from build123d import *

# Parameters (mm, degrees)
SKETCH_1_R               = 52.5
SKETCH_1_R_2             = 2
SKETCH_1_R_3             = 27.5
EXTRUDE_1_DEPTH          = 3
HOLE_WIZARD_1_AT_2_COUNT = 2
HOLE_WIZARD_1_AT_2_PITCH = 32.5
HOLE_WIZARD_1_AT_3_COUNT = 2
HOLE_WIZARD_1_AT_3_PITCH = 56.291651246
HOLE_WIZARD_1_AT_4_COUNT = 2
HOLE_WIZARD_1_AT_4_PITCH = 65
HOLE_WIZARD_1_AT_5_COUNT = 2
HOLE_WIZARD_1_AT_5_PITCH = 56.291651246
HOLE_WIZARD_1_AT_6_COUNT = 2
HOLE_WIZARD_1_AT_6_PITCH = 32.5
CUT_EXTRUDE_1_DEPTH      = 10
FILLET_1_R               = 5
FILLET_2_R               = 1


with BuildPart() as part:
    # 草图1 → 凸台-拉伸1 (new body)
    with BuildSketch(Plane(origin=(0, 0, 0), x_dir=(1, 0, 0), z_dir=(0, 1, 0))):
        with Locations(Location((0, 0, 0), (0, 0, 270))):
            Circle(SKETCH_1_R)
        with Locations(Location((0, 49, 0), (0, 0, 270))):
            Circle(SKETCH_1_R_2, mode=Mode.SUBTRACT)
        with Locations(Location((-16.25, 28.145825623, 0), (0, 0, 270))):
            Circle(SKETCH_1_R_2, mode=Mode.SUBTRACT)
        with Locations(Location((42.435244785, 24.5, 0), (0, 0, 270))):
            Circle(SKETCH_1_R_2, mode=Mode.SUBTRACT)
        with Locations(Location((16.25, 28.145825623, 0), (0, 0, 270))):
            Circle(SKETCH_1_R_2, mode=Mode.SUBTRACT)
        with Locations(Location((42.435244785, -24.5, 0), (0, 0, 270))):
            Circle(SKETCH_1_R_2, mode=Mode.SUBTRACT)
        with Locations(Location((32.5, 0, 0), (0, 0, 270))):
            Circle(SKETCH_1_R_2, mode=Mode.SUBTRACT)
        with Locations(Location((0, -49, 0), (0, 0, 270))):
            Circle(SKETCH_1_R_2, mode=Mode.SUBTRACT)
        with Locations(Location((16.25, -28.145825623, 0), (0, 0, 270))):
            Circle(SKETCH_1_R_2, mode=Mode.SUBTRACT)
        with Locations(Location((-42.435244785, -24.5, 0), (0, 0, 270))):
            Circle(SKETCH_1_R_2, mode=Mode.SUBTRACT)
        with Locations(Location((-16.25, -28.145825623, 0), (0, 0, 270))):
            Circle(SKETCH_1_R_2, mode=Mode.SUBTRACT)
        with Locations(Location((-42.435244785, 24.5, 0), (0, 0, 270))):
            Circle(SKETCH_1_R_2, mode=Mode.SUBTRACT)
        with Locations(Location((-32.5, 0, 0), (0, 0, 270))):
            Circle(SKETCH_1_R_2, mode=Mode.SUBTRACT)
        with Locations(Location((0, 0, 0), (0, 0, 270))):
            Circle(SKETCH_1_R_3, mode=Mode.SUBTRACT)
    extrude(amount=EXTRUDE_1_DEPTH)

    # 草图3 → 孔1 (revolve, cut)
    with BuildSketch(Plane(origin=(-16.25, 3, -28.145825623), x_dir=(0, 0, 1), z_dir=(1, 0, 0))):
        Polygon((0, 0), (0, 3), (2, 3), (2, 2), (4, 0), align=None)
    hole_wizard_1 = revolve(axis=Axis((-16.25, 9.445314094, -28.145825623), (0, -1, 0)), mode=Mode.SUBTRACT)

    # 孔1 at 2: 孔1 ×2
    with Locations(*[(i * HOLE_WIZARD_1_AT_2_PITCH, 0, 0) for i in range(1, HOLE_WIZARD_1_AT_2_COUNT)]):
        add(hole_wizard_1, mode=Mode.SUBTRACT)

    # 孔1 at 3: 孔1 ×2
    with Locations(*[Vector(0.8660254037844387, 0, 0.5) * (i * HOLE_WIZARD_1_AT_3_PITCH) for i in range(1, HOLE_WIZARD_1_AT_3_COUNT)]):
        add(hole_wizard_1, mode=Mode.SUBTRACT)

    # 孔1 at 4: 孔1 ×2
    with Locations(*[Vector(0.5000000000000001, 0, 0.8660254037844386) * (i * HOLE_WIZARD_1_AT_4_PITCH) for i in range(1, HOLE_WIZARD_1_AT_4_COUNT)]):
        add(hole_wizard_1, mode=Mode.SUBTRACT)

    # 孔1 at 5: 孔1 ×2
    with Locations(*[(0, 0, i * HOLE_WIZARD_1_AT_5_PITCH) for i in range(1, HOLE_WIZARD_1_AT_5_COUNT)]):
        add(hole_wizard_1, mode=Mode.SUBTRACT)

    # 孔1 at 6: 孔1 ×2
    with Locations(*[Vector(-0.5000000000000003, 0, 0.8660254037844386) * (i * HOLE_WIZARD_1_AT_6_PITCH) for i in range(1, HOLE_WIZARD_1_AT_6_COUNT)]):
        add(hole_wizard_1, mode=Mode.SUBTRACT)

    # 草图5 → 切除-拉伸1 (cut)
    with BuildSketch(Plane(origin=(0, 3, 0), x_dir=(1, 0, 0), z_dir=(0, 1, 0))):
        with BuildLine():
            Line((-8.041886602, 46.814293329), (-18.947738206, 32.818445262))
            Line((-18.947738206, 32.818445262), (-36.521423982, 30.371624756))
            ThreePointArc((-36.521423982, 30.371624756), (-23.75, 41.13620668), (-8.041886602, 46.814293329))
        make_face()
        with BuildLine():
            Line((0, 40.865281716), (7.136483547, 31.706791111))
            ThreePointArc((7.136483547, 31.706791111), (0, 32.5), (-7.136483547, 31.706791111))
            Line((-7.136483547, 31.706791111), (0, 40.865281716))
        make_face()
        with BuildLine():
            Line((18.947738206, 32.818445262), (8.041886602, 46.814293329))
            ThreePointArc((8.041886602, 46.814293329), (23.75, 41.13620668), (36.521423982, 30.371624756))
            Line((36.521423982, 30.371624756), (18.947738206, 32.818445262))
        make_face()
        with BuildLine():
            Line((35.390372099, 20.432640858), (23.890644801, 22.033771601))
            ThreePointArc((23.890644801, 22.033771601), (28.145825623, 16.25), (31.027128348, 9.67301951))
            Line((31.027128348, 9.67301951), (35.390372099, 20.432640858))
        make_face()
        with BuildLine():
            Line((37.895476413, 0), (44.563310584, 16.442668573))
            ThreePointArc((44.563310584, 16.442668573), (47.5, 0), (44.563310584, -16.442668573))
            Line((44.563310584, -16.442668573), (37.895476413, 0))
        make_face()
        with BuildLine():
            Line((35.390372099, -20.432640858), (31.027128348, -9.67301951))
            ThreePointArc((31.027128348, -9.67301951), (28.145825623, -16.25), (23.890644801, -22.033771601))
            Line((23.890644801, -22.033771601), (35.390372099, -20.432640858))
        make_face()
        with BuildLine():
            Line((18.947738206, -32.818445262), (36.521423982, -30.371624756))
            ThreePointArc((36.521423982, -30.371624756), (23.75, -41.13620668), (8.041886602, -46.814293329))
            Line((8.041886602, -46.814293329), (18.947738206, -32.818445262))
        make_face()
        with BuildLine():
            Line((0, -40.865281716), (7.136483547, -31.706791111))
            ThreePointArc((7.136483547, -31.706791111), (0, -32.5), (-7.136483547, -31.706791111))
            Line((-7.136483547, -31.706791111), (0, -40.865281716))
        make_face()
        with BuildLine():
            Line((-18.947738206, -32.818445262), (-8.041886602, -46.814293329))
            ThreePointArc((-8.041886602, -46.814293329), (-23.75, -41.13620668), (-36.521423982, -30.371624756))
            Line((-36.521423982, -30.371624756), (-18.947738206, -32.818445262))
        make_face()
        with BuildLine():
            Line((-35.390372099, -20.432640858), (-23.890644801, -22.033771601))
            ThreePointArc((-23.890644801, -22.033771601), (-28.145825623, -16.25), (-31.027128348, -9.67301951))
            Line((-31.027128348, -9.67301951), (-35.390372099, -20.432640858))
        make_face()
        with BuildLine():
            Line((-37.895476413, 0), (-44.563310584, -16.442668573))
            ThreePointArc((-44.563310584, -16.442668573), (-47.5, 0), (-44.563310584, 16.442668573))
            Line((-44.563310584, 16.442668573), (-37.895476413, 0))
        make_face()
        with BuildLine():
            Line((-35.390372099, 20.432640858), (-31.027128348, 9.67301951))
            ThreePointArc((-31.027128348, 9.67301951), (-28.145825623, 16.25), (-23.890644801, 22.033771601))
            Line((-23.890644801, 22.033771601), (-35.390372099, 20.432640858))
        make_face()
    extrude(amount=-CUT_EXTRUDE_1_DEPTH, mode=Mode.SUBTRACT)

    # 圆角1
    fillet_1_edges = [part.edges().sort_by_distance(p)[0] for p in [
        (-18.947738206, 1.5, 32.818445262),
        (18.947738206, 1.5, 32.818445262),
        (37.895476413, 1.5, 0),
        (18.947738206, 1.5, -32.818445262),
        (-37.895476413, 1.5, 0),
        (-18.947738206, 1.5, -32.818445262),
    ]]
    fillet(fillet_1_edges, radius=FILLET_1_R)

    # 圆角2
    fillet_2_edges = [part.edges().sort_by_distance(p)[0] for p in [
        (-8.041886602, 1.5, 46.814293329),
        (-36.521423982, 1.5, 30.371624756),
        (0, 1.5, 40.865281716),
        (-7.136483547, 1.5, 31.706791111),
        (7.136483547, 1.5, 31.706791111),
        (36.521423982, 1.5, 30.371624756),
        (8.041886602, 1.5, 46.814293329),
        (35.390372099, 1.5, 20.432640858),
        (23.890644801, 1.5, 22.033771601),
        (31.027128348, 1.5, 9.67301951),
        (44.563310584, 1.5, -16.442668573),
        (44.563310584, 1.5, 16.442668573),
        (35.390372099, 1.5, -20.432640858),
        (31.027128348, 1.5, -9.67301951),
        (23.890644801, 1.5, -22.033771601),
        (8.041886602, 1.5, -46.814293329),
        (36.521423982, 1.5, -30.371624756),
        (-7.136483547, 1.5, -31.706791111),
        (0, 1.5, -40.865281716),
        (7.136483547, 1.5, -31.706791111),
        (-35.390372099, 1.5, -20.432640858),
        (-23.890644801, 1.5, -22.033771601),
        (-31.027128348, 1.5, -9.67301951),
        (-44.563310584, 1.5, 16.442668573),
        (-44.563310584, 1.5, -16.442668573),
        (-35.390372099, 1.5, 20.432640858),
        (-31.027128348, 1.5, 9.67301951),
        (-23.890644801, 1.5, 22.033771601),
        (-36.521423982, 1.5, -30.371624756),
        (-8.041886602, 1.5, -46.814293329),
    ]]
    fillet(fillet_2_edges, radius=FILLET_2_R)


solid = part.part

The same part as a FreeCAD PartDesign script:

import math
import FreeCAD as App
import Part
import Sketcher

V = App.Vector


def edges_at(feature, points):
    """Names of the edges that pass closest to the given points."""
    edges = feature.Shape.Edges
    near = lambda p: min(range(len(edges)), key=lambda i: edges[i].distToShape(Part.Vertex(*p))[0])
    return sorted({f"Edge{near(p) + 1}" for p in points})

doc = App.newDocument("Part")
params = doc.addObject("Spreadsheet::Sheet", "Params")
for row, (alias, value) in enumerate([
    ("sketch1_diameter", "105 mm"),
    ("sketch1_diameter2", "4 mm"),
    ("sketch1_diameter3", "55 mm"),
    ("pad1_length", "3 mm"),
    ("sketch2_width", "3 mm"),
    ("sketch2_width2", "1 mm"),
    ("sketch2_height", "4 mm"),
    ("sketch2_height2", "2 mm"),
    ("groove_angle", "360 deg"),
    ("linearpattern_pitch", "32.5 mm"),
    ("linearpattern2_pitch", "56.291651 mm"),
    ("linearpattern3_pitch", "65 mm"),
    ("linearpattern4_pitch", "56.291651 mm"),
    ("linearpattern5_pitch", "32.5 mm"),
    ("sketch3_radius", "47.5 mm"),
    ("sketch3_radius2", "32.5 mm"),
    ("pocket1_length", "10 mm"),
    ("fillet_radius", "5 mm"),
    ("fillet2_radius", "1 mm"),
], start=1):
    params.set(f"A{row}", alias)
    params.set(f"B{row}", "=" + value)
    params.setAlias(f"B{row}", alias)

body = doc.addObject("PartDesign::Body", "Body")

# Sketch on XZ plane
sketch1 = body.newObject("Sketcher::SketchObject", "Sketch")
sketch1.AttachmentSupport = (doc.getObject("XZ_Plane"), [""])
sketch1.MapMode = "FlatFace"
sketch1.addGeometry([
    Part.Circle(V(0, 0, 0), V(0, 0, 1), 52.5),  # 0
    Part.Circle(V(-42.4, -24.5, 0), V(0, 0, 1), 2),  # 1
    Part.Circle(V(-16.2, -28.1, 0), V(0, 0, 1), 2),  # 2
    Part.Circle(V(0, -49, 0), V(0, 0, 1), 2),  # 3
    Part.Circle(V(-42.4, 24.5, 0), V(0, 0, 1), 2),  # 4
    Part.Circle(V(-32.5, 0, 0), V(0, 0, 1), 2),  # 5
    Part.Circle(V(0, 0, 0), V(0, 0, 1), 27.5),  # 6
    Part.Circle(V(-16.2, 28.1, 0), V(0, 0, 1), 2),  # 7
    Part.Circle(V(16.2, -28.1, 0), V(0, 0, 1), 2),  # 8
    Part.Circle(V(32.5, 0, 0), V(0, 0, 1), 2),  # 9
    Part.Circle(V(42.4, -24.5, 0), V(0, 0, 1), 2),  # 10
    Part.Circle(V(0, 49, 0), V(0, 0, 1), 2),  # 11
    Part.Circle(V(16.2, 28.1, 0), V(0, 0, 1), 2),  # 12
    Part.Circle(V(42.4, 24.5, 0), V(0, 0, 1), 2),  # 13
], False)
sketch1.addConstraint([
    Sketcher.Constraint("Coincident", 0, 3, -1, 1),
    Sketcher.Constraint("Coincident", 6, 3, -1, 1),
    Sketcher.Constraint("Equal", 1, 2),
    Sketcher.Constraint("Equal", 2, 3),
    Sketcher.Constraint("Equal", 3, 4),
    Sketcher.Constraint("Equal", 4, 5),
    Sketcher.Constraint("Equal", 5, 7),
    Sketcher.Constraint("Equal", 7, 8),
    Sketcher.Constraint("Equal", 8, 9),
    Sketcher.Constraint("Equal", 9, 10),
    Sketcher.Constraint("Equal", 10, 11),
    Sketcher.Constraint("Equal", 11, 12),
    Sketcher.Constraint("Equal", 12, 13),
    Sketcher.Constraint("Symmetric", 7, 3, 8, 3, -1, 1),
    Sketcher.Constraint("Symmetric", 5, 3, 9, 3, -1, 1),
    Sketcher.Constraint("Symmetric", 4, 3, 10, 3, -1, 1),
    Sketcher.Constraint("Symmetric", 3, 3, 11, 3, -1, 1),
    Sketcher.Constraint("Symmetric", 2, 3, 12, 3, -1, 1),
    Sketcher.Constraint("Symmetric", 1, 3, 13, 3, -1, 1),
    Sketcher.Constraint("Symmetric", 2, 3, 8, 3, -2),
    Sketcher.Constraint("Symmetric", 1, 3, 10, 3, -2),
    Sketcher.Constraint("PointOnObject", 3, 3, -2),
    Sketcher.Constraint("PointOnObject", 5, 3, -1),
    Sketcher.Constraint("Diameter", 0, 105.0),
    Sketcher.Constraint("Diameter", 1, 4.0),
    Sketcher.Constraint("Diameter", 6, 55.0),
    Sketcher.Constraint("DistanceY", 3, 3, -1, 1, 49.0),
    Sketcher.Constraint("DistanceY", 1, 3, 4, 3, 49.0),
    Sketcher.Constraint("DistanceX", 5, 3, -1, 1, 32.5),
    Sketcher.Constraint("DistanceX", 2, 3, 8, 3, 32.5),
    Sketcher.Constraint("DistanceY", 2, 3, 7, 3, 56.291651),
    Sketcher.Constraint("DistanceX", 1, 3, -1, 1, 42.435245),
])
sketch1.setExpression("Constraints[23]", "Params.sketch1_diameter")
sketch1.setExpression("Constraints[24]", "Params.sketch1_diameter2")
sketch1.setExpression("Constraints[25]", "Params.sketch1_diameter3")
pad1 = body.newObject("PartDesign::Pad", "Pad")
pad1.Profile = sketch1
pad1.setExpression("Length", "Params.pad1_length")
pad1.Reversed = True

# Sketch on YZ plane
sketch2 = body.newObject("Sketcher::SketchObject", "Sketch001")
sketch2.AttachmentSupport = (doc.getObject("YZ_Plane"), [""])
sketch2.MapMode = "FlatFace"
sketch2.AttachmentOffset = App.Placement(V(0, 0, -16.25), App.Rotation())
sketch2.addGeometry([
    Part.LineSegment(V(0, -28.1, 0), V(3, -28.1, 0)),  # 0
    Part.LineSegment(V(3, -28.1, 0), V(3, -24.1, 0)),  # 1
    Part.LineSegment(V(3, -24.1, 0), V(1, -26.1, 0)),  # 2
    Part.LineSegment(V(1, -26.1, 0), V(0, -26.1, 0)),  # 3
    Part.LineSegment(V(0, -26.1, 0), V(0, -28.1, 0)),  # 4
], False)
sketch2.addGeometry(Part.LineSegment(V(3, -28.1, 0), V(0, -28.1, 0)), True)  # axis
sketch2.addConstraint([
    Sketcher.Constraint("Coincident", 0, 2, 1, 1),
    Sketcher.Constraint("Coincident", 1, 2, 2, 1),
    Sketcher.Constraint("Coincident", 2, 2, 3, 1),
    Sketcher.Constraint("Coincident", 3, 2, 4, 1),
    Sketcher.Constraint("Coincident", 4, 2, 0, 1),
    Sketcher.Constraint("Horizontal", 0),
    Sketcher.Constraint("Vertical", 1),
    Sketcher.Constraint("Horizontal", 3),
    Sketcher.Constraint("Vertical", 4),
    Sketcher.Constraint("Horizontal", 5),
    Sketcher.Constraint("Coincident", 5, 1, 0, 2),
    Sketcher.Constraint("PointOnObject", 3, 2, -2),
    Sketcher.Constraint("PointOnObject", 5, 2, -2),
    Sketcher.Constraint("DistanceX", 0, 1, 0, 2, 3.0),
    Sketcher.Constraint("DistanceX", 3, 2, 3, 1, 1.0),
    Sketcher.Constraint("DistanceY", 1, 1, 1, 2, 4.0),
    Sketcher.Constraint("DistanceY", 4, 2, 4, 1, 2.0),
    Sketcher.Constraint("DistanceY", 0, 2, -1, 1, 28.145826),
])
sketch2.setExpression("Constraints[13]", "Params.sketch2_width")
sketch2.setExpression("Constraints[14]", "Params.sketch2_width2")
sketch2.setExpression("Constraints[15]", "Params.sketch2_height")
sketch2.setExpression("Constraints[16]", "Params.sketch2_height2")
groove = body.newObject("PartDesign::Groove", "Groove")
groove.Profile = sketch2
groove.ReferenceAxis = (sketch2, ["Axis0"])
groove.setExpression("Angle", "Params.groove_angle")
doc.recompute()

linearpattern = body.newObject("PartDesign::LinearPattern", "LinearPattern")
linearpattern.Originals = [groove]
linearpattern.Direction = (doc.getObject("X_Axis"), [""])
linearpattern.Mode = "offset"
linearpattern.setExpression("Offset", "Params.linearpattern_pitch")
linearpattern.Occurrences = 2
body.Tip = linearpattern
doc.recompute()

datumline = body.newObject("PartDesign::Line", "DatumLine")
datumline.Placement = App.Placement(V(0, 0, 0), App.Rotation(V(0, 0, 1), V(0.866025404, 0, 0.5)))
linearpattern2 = body.newObject("PartDesign::LinearPattern", "LinearPattern001")
linearpattern2.Originals = [groove]
linearpattern2.Direction = (datumline, [""])
linearpattern2.Mode = "offset"
linearpattern2.setExpression("Offset", "Params.linearpattern2_pitch")
linearpattern2.Occurrences = 2
body.Tip = linearpattern2
doc.recompute()

datumline2 = body.newObject("PartDesign::Line", "DatumLine001")
datumline2.Placement = App.Placement(V(0, 0, 0), App.Rotation(V(0, 0, 1), V(0.5, 0, 0.866025404)))
linearpattern3 = body.newObject("PartDesign::LinearPattern", "LinearPattern002")
linearpattern3.Originals = [groove]
linearpattern3.Direction = (datumline2, [""])
linearpattern3.Mode = "offset"
linearpattern3.setExpression("Offset", "Params.linearpattern3_pitch")
linearpattern3.Occurrences = 2
body.Tip = linearpattern3
doc.recompute()

linearpattern4 = body.newObject("PartDesign::LinearPattern", "LinearPattern003")
linearpattern4.Originals = [groove]
linearpattern4.Direction = (doc.getObject("Z_Axis"), [""])
linearpattern4.Mode = "offset"
linearpattern4.setExpression("Offset", "Params.linearpattern4_pitch")
linearpattern4.Occurrences = 2
body.Tip = linearpattern4
doc.recompute()

datumline3 = body.newObject("PartDesign::Line", "DatumLine002")
datumline3.Placement = App.Placement(V(0, 0, 0), App.Rotation(V(0, 0, 1), V(-0.5, 0, 0.866025404)))
linearpattern5 = body.newObject("PartDesign::LinearPattern", "LinearPattern004")
linearpattern5.Originals = [groove]
linearpattern5.Direction = (datumline3, [""])
linearpattern5.Mode = "offset"
linearpattern5.setExpression("Offset", "Params.linearpattern5_pitch")
linearpattern5.Occurrences = 2
body.Tip = linearpattern5

# Sketch on XZ plane
sketch3 = body.newObject("Sketcher::SketchObject", "Sketch002")
sketch3.AttachmentSupport = (doc.getObject("XZ_Plane"), [""])
sketch3.MapMode = "FlatFace"
sketch3.AttachmentOffset = App.Placement(V(0, 0, -3), App.Rotation())
sketch3.addGeometry([
    Part.LineSegment(V(-19, -33, 0), V(-8, -47, 0)),  # 0
    Part.ArcOfCircle(Part.Circle(V(0, 0, 0), V(0, 0, 1), 47), math.radians(-140), math.radians(-100)),  # 1
    Part.LineSegment(V(-37, -30, 0), V(-19, -33, 0)),  # 2
    Part.LineSegment(V(7, -32, 0), V(0, -41, 0)),  # 3
    Part.LineSegment(V(0, -41, 0), V(-7, -32, 0)),  # 4
    Part.ArcOfCircle(Part.Circle(V(0, 0, 0), V(0, 0, 1), 32), math.radians(-103), math.radians(-77)),  # 5
    Part.LineSegment(V(8, -47, 0), V(19, -33, 0)),  # 6
    Part.LineSegment(V(19, -33, 0), V(37, -30, 0)),  # 7
    Part.ArcOfCircle(Part.Circle(V(0, 0, 0), V(0, 0, 1), 47), math.radians(-80), math.radians(-40)),  # 8
    Part.LineSegment(V(35, -20, 0), V(24, -22, 0)),  # 9
    Part.ArcOfCircle(Part.Circle(V(0, 0, 0), V(0, 0, 1), 32), math.radians(-43), math.radians(-17)),  # 10
    Part.LineSegment(V(31, -10, 0), V(35, -20, 0)),  # 11
    Part.LineSegment(V(45, -16, 0), V(38, 0, 0)),  # 12
    Part.LineSegment(V(38, 0, 0), V(45, 16, 0)),  # 13
    Part.ArcOfCircle(Part.Circle(V(0, 0, 0), V(0, 0, 1), 48), math.radians(-20), math.radians(20)),  # 14
    Part.LineSegment(V(35, 20, 0), V(31, 10, 0)),  # 15
    Part.ArcOfCircle(Part.Circle(V(0, 0, 0), V(0, 0, 1), 32), math.radians(17), math.radians(43)),  # 16
    Part.LineSegment(V(24, 22, 0), V(35, 20, 0)),  # 17
    Part.LineSegment(V(37, 30, 0), V(19, 33, 0)),  # 18
    Part.LineSegment(V(19, 33, 0), V(8, 47, 0)),  # 19
    Part.ArcOfCircle(Part.Circle(V(0, 0, 0), V(0, 0, 1), 47), math.radians(40), math.radians(80)),  # 20
    Part.LineSegment(V(0, 41, 0), V(7, 32, 0)),  # 21
    Part.ArcOfCircle(Part.Circle(V(0, 0, 0), V(0, 0, 1), 32), math.radians(77), math.radians(103)),  # 22
    Part.LineSegment(V(-7, 32, 0), V(0, 41, 0)),  # 23
    Part.LineSegment(V(-8, 47, 0), V(-19, 33, 0)),  # 24
    Part.LineSegment(V(-19, 33, 0), V(-37, 30, 0)),  # 25
    Part.ArcOfCircle(Part.Circle(V(0, 0, 0), V(0, 0, 1), 47), math.radians(100), math.radians(140)),  # 26
    Part.LineSegment(V(-35, 20, 0), V(-24, 22, 0)),  # 27
    Part.ArcOfCircle(Part.Circle(V(0, 0, 0), V(0, 0, 1), 32), math.radians(137), math.radians(163)),  # 28
    Part.LineSegment(V(-31, 10, 0), V(-35, 20, 0)),  # 29
    Part.LineSegment(V(-45, 16, 0), V(-38, 0, 0)),  # 30
    Part.LineSegment(V(-38, 0, 0), V(-45, -16, 0)),  # 31
    Part.ArcOfCircle(Part.Circle(V(0, 0, 0), V(0, 0, 1), 48), math.radians(160), math.radians(200)),  # 32
    Part.LineSegment(V(-35, -20, 0), V(-31, -10, 0)),  # 33
    Part.ArcOfCircle(Part.Circle(V(0, 0, 0), V(0, 0, 1), 32), math.radians(-163), math.radians(-137)),  # 34
    Part.LineSegment(V(-24, -22, 0), V(-35, -20, 0)),  # 35
], False)
sketch3.addConstraint([
    Sketcher.Constraint("Coincident", 0, 2, 1, 2),
    Sketcher.Constraint("Coincident", 1, 1, 2, 1),
    Sketcher.Constraint("Coincident", 2, 2, 0, 1),
    Sketcher.Constraint("Coincident", 3, 2, 4, 1),
    Sketcher.Constraint("Coincident", 4, 2, 5, 1),
    Sketcher.Constraint("Coincident", 5, 2, 3, 1),
    Sketcher.Constraint("Coincident", 6, 2, 7, 1),
    Sketcher.Constraint("Coincident", 7, 2, 8, 2),
    Sketcher.Constraint("Coincident", 8, 1, 6, 1),
    Sketcher.Constraint("Coincident", 9, 2, 10, 1),
    Sketcher.Constraint("Coincident", 10, 2, 11, 1),
    Sketcher.Constraint("Coincident", 11, 2, 9, 1),
    Sketcher.Constraint("Coincident", 12, 2, 13, 1),
    Sketcher.Constraint("Coincident", 13, 2, 14, 2),
    Sketcher.Constraint("Coincident", 14, 1, 12, 1),
    Sketcher.Constraint("Coincident", 15, 2, 16, 1),
    Sketcher.Constraint("Coincident", 16, 2, 17, 1),
    Sketcher.Constraint("Coincident", 17, 2, 15, 1),
    Sketcher.Constraint("Coincident", 18, 2, 19, 1),
    Sketcher.Constraint("Coincident", 19, 2, 20, 2),
    Sketcher.Constraint("Coincident", 20, 1, 18, 1),
    Sketcher.Constraint("Coincident", 21, 2, 22, 1),
    Sketcher.Constraint("Coincident", 22, 2, 23, 1),
    Sketcher.Constraint("Coincident", 23, 2, 21, 1),
    Sketcher.Constraint("Coincident", 24, 2, 25, 1),
    Sketcher.Constraint("Coincident", 25, 2, 26, 2),
    Sketcher.Constraint("Coincident", 26, 1, 24, 1),
    Sketcher.Constraint("Coincident", 27, 2, 28, 1),
    Sketcher.Constraint("Coincident", 28, 2, 29, 1),
    Sketcher.Constraint("Coincident", 29, 2, 27, 1),
    Sketcher.Constraint("Coincident", 30, 2, 31, 1),
    Sketcher.Constraint("Coincident", 31, 2, 32, 2),
    Sketcher.Constraint("Coincident", 32, 1, 30, 1),
    Sketcher.Constraint("Coincident", 33, 2, 34, 1),
    Sketcher.Constraint("Coincident", 34, 2, 35, 1),
    Sketcher.Constraint("Coincident", 35, 2, 33, 1),
    Sketcher.Constraint("Coincident", 1, 3, -1, 1),
    Sketcher.Constraint("Coincident", 5, 3, -1, 1),
    Sketcher.Constraint("Coincident", 8, 3, -1, 1),
    Sketcher.Constraint("Coincident", 10, 3, -1, 1),
    Sketcher.Constraint("Coincident", 14, 3, -1, 1),
    Sketcher.Constraint("Coincident", 16, 3, -1, 1),
    Sketcher.Constraint("Coincident", 20, 3, -1, 1),
    Sketcher.Constraint("Coincident", 22, 3, -1, 1),
    Sketcher.Constraint("Coincident", 26, 3, -1, 1),
    Sketcher.Constraint("Coincident", 28, 3, -1, 1),
    Sketcher.Constraint("Coincident", 32, 3, -1, 1),
    Sketcher.Constraint("Coincident", 34, 3, -1, 1),
    Sketcher.Constraint("Equal", 1, 8),
    Sketcher.Constraint("Equal", 5, 10),
    Sketcher.Constraint("Equal", 8, 14),
    Sketcher.Constraint("Equal", 10, 16),
    Sketcher.Constraint("Equal", 14, 20),
    Sketcher.Constraint("Equal", 16, 22),
    Sketcher.Constraint("Equal", 20, 26),
    Sketcher.Constraint("Equal", 22, 28),
    Sketcher.Constraint("Equal", 26, 32),
    Sketcher.Constraint("Equal", 28, 34),
    Sketcher.Constraint("Symmetric", 2, 2, 18, 2, -1, 1),
    Sketcher.Constraint("Symmetric", 3, 2, 23, 2, -1, 1),
    Sketcher.Constraint("Symmetric", 6, 2, 24, 2, -1, 1),
    Sketcher.Constraint("Symmetric", 11, 2, 29, 2, -1, 1),
    Sketcher.Constraint("Symmetric", 12, 2, 30, 2, -1, 1),
    Sketcher.Constraint("Symmetric", 17, 2, 35, 2, -1, 1),
    Sketcher.Constraint("Symmetric", 2, 2, 6, 2, -2),
    Sketcher.Constraint("Symmetric", 17, 2, 29, 2, -2),
    Sketcher.Constraint("PointOnObject", 3, 2, -2),
    Sketcher.Constraint("PointOnObject", 12, 2, -1),
    Sketcher.Constraint("Parallel", 0, 4),
    Sketcher.Constraint("Parallel", 3, 6),
    Sketcher.Constraint("Parallel", 7, 9),
    Sketcher.Constraint("Parallel", 11, 12),
    Sketcher.Constraint("Parallel", 13, 15),
    Sketcher.Constraint("Parallel", 2, 17),
    Sketcher.Constraint("Parallel", 17, 18),
    Sketcher.Constraint("Parallel", 4, 19),
    Sketcher.Constraint("Parallel", 19, 21),
    Sketcher.Constraint("Parallel", 6, 23),
    Sketcher.Constraint("Parallel", 23, 24),
    Sketcher.Constraint("Parallel", 9, 25),
    Sketcher.Constraint("Parallel", 25, 27),
    Sketcher.Constraint("Parallel", 12, 29),
    Sketcher.Constraint("Parallel", 29, 30),
    Sketcher.Constraint("Parallel", 15, 31),
    Sketcher.Constraint("Parallel", 31, 33),
    Sketcher.Constraint("Parallel", 18, 35),
    Sketcher.Constraint("Horizontal", 4, 2, 5, 2),
    Sketcher.Constraint("Horizontal", 1, 1, 7, 2),
    Sketcher.Constraint("Horizontal", 15, 2, 28, 2),
    Sketcher.Constraint("Equal", 0, 2),
    Sketcher.Constraint("Equal", 4, 9),
    Sketcher.Constraint("Equal", 9, 11),
    Sketcher.Constraint("Equal", 7, 12),
    Sketcher.Constraint("Radius", 1, 47.5),
    Sketcher.Constraint("Radius", 5, 32.5),
    Sketcher.Constraint("DistanceX", 2, 2, -1, 1, 18.947738),
    Sketcher.Constraint("DistanceY", 3, 2, -1, 1, 40.865282),
    Sketcher.Constraint("DistanceY", 4, 2, -1, 1, 31.706791),
    Sketcher.Constraint("DistanceY", 9, 2, -1, 1, 22.033772),
    Sketcher.Constraint("DistanceY", 11, 2, -1, 1, 20.432641),
])
sketch3.setExpression("Constraints[93]", "Params.sketch3_radius")
sketch3.setExpression("Constraints[94]", "Params.sketch3_radius2")
pocket1 = body.newObject("PartDesign::Pocket", "Pocket")
pocket1.Profile = sketch3
pocket1.setExpression("Length", "Params.pocket1_length")
pocket1.Reversed = True
doc.recompute()

fillet = body.newObject("PartDesign::Fillet", "Fillet")
fillet.Base = (pocket1, edges_at(pocket1, [
    (-18.948, 1.5, 32.818),
    (18.948, 1.5, 32.818),
    (37.895, 1.5, 0),
    (18.948, 1.5, -32.818),
    (-37.895, 1.5, 0),
    (-18.948, 1.5, -32.818),
]))
fillet.setExpression("Radius", "Params.fillet_radius")
doc.recompute()

fillet2 = body.newObject("PartDesign::Fillet", "Fillet001")
fillet2.Base = (fillet, edges_at(fillet, [
    (-8.042, 1.5, 46.814),
    (-36.521, 1.5, 30.372),
    (0, 1.5, 40.865),
    (-7.136, 1.5, 31.707),
    (7.136, 1.5, 31.707),
    (36.521, 1.5, 30.372),
    (8.042, 1.5, 46.814),
    (35.39, 1.5, 20.433),
    (23.891, 1.5, 22.034),
    (31.027, 1.5, 9.673),
    (44.563, 1.5, -16.443),
    (44.563, 1.5, 16.443),
    (35.39, 1.5, -20.433),
    (31.027, 1.5, -9.673),
    (23.891, 1.5, -22.034),
    (8.042, 1.5, -46.814),
    (36.521, 1.5, -30.372),
    (-7.136, 1.5, -31.707),
    (0, 1.5, -40.865),
    (7.136, 1.5, -31.707),
    (-35.39, 1.5, -20.433),
    (-23.891, 1.5, -22.034),
    (-31.027, 1.5, -9.673),
    (-44.563, 1.5, 16.443),
    (-44.563, 1.5, -16.443),
    (-35.39, 1.5, 20.433),
    (-31.027, 1.5, 9.673),
    (-23.891, 1.5, 22.034),
    (-36.521, 1.5, -30.372),
    (-8.042, 1.5, -46.814),
]))
fillet2.setExpression("Radius", "Params.fillet2_radius")

doc.recompute()
